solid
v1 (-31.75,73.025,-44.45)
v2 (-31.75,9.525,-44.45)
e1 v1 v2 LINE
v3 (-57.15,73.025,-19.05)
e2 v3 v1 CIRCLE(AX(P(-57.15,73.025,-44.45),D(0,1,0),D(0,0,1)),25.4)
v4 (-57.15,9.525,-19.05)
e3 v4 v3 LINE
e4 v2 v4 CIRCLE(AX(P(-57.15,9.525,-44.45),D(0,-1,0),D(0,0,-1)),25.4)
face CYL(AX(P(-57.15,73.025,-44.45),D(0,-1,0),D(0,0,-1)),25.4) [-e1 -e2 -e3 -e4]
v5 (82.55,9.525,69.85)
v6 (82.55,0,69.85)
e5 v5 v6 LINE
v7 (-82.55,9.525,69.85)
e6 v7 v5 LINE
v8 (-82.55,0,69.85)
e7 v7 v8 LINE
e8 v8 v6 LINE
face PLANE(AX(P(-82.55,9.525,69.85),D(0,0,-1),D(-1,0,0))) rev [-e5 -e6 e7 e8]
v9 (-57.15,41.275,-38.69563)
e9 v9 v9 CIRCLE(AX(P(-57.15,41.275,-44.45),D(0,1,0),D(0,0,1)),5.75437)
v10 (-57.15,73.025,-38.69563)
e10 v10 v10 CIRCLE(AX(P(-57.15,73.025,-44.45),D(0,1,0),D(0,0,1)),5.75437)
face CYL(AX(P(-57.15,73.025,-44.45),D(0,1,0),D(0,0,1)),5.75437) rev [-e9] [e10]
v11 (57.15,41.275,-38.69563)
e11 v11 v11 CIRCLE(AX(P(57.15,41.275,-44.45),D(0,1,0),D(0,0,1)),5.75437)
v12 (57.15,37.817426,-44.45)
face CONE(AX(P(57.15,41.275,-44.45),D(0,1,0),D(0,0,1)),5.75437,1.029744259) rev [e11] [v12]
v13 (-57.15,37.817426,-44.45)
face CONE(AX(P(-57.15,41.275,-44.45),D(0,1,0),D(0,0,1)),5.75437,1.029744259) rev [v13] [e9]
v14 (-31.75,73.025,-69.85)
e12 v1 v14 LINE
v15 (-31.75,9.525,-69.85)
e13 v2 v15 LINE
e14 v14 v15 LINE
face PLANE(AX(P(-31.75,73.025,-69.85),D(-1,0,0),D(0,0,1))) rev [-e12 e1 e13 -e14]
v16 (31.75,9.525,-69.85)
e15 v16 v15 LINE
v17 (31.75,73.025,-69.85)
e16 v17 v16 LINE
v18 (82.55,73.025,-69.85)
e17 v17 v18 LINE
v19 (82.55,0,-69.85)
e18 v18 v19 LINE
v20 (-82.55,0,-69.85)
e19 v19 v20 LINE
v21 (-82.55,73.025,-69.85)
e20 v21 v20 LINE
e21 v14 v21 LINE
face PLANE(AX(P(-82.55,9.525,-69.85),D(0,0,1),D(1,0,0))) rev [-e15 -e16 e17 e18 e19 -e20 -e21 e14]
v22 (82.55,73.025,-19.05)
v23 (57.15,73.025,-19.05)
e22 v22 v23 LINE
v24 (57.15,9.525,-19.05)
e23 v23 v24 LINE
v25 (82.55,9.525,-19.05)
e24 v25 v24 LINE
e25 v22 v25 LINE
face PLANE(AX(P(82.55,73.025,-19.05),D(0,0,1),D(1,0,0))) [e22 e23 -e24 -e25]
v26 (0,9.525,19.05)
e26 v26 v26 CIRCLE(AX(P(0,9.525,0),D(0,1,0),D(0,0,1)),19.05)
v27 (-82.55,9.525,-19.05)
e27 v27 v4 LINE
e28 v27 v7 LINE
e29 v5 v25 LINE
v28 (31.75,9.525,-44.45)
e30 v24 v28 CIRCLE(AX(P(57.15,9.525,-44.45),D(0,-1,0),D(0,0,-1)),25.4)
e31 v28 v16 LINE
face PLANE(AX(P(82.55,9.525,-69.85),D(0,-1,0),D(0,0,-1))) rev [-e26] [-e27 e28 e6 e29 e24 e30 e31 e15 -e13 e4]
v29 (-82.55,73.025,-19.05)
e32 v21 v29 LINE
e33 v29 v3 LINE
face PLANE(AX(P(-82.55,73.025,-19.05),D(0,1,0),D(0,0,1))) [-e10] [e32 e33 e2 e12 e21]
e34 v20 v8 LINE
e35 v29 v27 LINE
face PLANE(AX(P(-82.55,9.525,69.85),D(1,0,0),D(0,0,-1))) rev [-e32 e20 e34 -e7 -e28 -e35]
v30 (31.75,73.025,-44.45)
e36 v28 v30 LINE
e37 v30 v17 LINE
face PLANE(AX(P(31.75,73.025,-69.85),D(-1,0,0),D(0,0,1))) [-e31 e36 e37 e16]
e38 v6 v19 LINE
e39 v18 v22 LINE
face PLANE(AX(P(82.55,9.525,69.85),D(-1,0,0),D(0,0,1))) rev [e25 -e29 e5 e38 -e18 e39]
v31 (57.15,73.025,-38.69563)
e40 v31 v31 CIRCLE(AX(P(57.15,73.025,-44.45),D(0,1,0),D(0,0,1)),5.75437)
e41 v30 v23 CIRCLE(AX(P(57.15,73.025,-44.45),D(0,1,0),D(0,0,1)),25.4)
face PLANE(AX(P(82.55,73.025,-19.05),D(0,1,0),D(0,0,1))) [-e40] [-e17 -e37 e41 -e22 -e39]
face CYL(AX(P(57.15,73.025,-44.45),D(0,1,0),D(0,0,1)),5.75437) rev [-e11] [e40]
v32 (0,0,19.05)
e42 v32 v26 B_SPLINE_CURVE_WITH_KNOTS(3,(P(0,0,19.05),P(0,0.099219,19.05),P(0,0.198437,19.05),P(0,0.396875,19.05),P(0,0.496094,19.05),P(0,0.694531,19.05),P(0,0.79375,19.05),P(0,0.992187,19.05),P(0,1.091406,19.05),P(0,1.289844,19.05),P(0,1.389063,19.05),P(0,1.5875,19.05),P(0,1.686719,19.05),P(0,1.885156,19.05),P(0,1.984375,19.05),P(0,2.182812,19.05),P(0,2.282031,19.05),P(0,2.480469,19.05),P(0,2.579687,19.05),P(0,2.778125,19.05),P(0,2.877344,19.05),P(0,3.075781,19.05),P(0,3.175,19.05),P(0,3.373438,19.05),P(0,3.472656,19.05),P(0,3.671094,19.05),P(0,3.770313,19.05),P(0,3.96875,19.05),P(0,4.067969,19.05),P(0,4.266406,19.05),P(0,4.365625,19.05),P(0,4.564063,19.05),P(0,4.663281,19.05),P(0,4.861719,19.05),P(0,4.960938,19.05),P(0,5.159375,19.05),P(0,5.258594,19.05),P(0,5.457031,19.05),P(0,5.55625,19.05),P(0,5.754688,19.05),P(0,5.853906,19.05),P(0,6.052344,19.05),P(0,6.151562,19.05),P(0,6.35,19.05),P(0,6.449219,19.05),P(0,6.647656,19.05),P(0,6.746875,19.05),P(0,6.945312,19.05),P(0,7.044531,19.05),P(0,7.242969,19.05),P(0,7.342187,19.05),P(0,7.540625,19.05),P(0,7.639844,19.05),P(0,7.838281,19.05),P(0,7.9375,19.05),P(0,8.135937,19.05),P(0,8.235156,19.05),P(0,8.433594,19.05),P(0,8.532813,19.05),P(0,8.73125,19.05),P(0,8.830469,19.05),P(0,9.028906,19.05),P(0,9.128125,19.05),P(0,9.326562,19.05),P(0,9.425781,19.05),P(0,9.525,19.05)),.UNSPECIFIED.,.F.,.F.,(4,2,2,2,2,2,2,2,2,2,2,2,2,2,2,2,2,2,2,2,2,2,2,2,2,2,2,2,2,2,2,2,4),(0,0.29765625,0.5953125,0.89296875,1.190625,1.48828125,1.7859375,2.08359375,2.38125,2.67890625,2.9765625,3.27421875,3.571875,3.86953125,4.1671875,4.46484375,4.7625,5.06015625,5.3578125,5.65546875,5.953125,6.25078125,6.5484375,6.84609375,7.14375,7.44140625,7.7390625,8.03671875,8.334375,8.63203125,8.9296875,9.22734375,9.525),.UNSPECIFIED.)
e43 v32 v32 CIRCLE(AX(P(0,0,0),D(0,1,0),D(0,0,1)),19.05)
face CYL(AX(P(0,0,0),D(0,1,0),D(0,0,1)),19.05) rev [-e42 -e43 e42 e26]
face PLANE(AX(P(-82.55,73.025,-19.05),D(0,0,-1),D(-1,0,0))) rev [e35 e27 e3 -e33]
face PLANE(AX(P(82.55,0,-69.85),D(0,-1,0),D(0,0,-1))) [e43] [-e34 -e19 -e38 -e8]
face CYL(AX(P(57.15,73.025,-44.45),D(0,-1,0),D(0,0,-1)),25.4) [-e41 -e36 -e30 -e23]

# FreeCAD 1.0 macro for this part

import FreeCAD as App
import Part
import Sketcher
from FreeCAD import Vector
Q = App.Units.Quantity


def edges_at(feature, points):
    """Names of the edges that pass closest to the given points."""
    edges = feature.Shape.Edges
    near = lambda p: min(range(len(edges)), key=lambda i: edges[i].distToShape(Part.Vertex(*p))[0])
    return sorted({f"Edge{near(p) + 1}" for p in points})

doc = App.newDocument("Part")
body = doc.addObject("PartDesign::Body", "Body")

# Sketch on XZ plane
sketch1 = body.newObject("Sketcher::SketchObject", "Sketch")
sketch1.AttachmentSupport = (doc.getObject("XZ_Plane"), [""])
sketch1.MapMode = "FlatFace"
sketch1.addGeometry([
    Part.LineSegment(Vector(-83, -70, 0), Vector(-83, 70, 0)),
    Part.LineSegment(Vector(-83, 70, 0), Vector(83, 70, 0)),
    Part.LineSegment(Vector(83, 70, 0), Vector(83, -70, 0)),
    Part.LineSegment(Vector(83, -70, 0), Vector(-83, -70, 0)),
], False)
sketch1.addConstraint([
    Sketcher.Constraint("Coincident", 0, 2, 1, 1),
    Sketcher.Constraint("Coincident", 1, 2, 2, 1),
    Sketcher.Constraint("Coincident", 2, 2, 3, 1),
    Sketcher.Constraint("Coincident", 3, 2, 0, 1),
    Sketcher.Constraint("Vertical", 0),
    Sketcher.Constraint("Horizontal", 1),
    Sketcher.Constraint("Vertical", 2),
    Sketcher.Constraint("Horizontal", 3),
    Sketcher.Constraint("Symmetric", 0, 2, 2, 2, -1, 1),
    Sketcher.Constraint("DistanceX", 1, 1, 1, 2, Q("6.5 in")),
    Sketcher.Constraint("DistanceY", 0, 1, 0, 2, Q("5.5 in")),
])
pad1 = body.newObject("PartDesign::Pad", "Pad")
pad1.Profile = sketch1
pad1.Length = Q("0.375 in")
pad1.Reversed = True

# Sketch on XZ plane
sketch2 = body.newObject("Sketcher::SketchObject", "Sketch001")
sketch2.AttachmentSupport = (doc.getObject("XZ_Plane"), [""])
sketch2.MapMode = "FlatFace"
sketch2.AttachmentOffset = App.Placement(Vector(0, 0, -0.375 * 25.4), App.Rotation())
sketch2.addGeometry([
    Part.LineSegment(Vector(-83, -70, 0), Vector(-83, -19, 0)),
    Part.LineSegment(Vector(-83, -19, 0), Vector(-32, -19, 0)),
    Part.LineSegment(Vector(-32, -19, 0), Vector(-32, -70, 0)),
    Part.LineSegment(Vector(-32, -70, 0), Vector(-83, -70, 0)),
], False)
sketch2.addConstraint([
    Sketcher.Constraint("Coincident", 0, 2, 1, 1),
    Sketcher.Constraint("Coincident", 1, 2, 2, 1),
    Sketcher.Constraint("Coincident", 2, 2, 3, 1),
    Sketcher.Constraint("Coincident", 3, 2, 0, 1),
    Sketcher.Constraint("Vertical", 0),
    Sketcher.Constraint("Horizontal", 1),
    Sketcher.Constraint("Vertical", 2),
    Sketcher.Constraint("Horizontal", 3),
    Sketcher.Constraint("Equal", 3, 0),
    Sketcher.Constraint("DistanceX", 1, 1, 1, 2, Q("2 in")),
    Sketcher.Constraint("DistanceX", 0, 2, -1, 1, Q("3.25 in")),
    Sketcher.Constraint("DistanceY", 0, 2, -1, 1, Q("0.75 in")),
])
pad2 = body.newObject("PartDesign::Pad", "Pad001")
pad2.Profile = sketch2
pad2.Length = Q("2.5 in")
pad2.Reversed = True

# Sketch on YZ plane
sketch3 = body.newObject("Sketcher::SketchObject", "Sketch002")
sketch3.AttachmentSupport = (doc.getObject("YZ_Plane"), [""])
sketch3.MapMode = "FlatFace"
sketch3.AttachmentOffset = App.Placement(Vector(0, 0, -2.25 * 25.4), App.Rotation())
sketch3.addGeometry([
    Part.LineSegment(Vector(38, -44, 0), Vector(73, -44, 0)),
    Part.LineSegment(Vector(73, -44, 0), Vector(73, -39, 0)),
    Part.LineSegment(Vector(73, -39, 0), Vector(41, -39, 0)),
    Part.LineSegment(Vector(41, -39, 0), Vector(38, -44, 0)),
], False)
sketch3.addGeometry(Part.LineSegment(Vector(73, -44, 0), Vector(38, -44, 0)), True)  # axis
sketch3.addConstraint([
    Sketcher.Constraint("Coincident", 0, 2, 1, 1),
    Sketcher.Constraint("Coincident", 1, 2, 2, 1),
    Sketcher.Constraint("Coincident", 2, 2, 3, 1),
    Sketcher.Constraint("Coincident", 3, 2, 0, 1),
    Sketcher.Constraint("Horizontal", 0),
    Sketcher.Constraint("Vertical", 1),
    Sketcher.Constraint("Horizontal", 2),
    Sketcher.Constraint("Horizontal", 4),
    Sketcher.Constraint("Coincident", 4, 1, 0, 2),
    Sketcher.Constraint("Equal", 0, 4),
    Sketcher.Constraint("Angle", 3, Q("-121 deg")),
    Sketcher.Constraint("DistanceX", 2, 2, 2, 1, Q("1.25 in")),
    Sketcher.Constraint("DistanceY", 0, 2, -1, 1, Q("1.75 in")),
    Sketcher.Constraint("DistanceX", -1, 1, 0, 2, Q("2.875 in")),
    Sketcher.Constraint("DistanceY", 1, 1, 1, 2, 5.75437),
])
groove = body.newObject("PartDesign::Groove", "Groove")
groove.Profile = sketch3
groove.ReferenceAxis = (sketch3, ["Axis0"])
groove.Angle = 360
doc.recompute()

fillet = body.newObject("PartDesign::Fillet", "Fillet")
fillet.Base = (groove, edges_at(groove, [(-31.75, 41.275, -19.05)]))
fillet.Radius = Q("1 in")
doc.recompute()

mirrored = body.newObject("PartDesign::Mirrored", "Mirrored")
mirrored.Originals = [pad2, groove]
mirrored.MirrorPlane = (doc.getObject("YZ_Plane"), [""])
body.Tip = mirrored
doc.recompute()

fillet2 = body.newObject("PartDesign::Fillet", "Fillet001")
fillet2.Base = (mirrored, edges_at(mirrored, [(31.75, 41.275, -19.05)]))
fillet2.Radius = Q("1 in")

# Sketch on XZ plane
sketch4 = body.newObject("Sketcher::SketchObject", "Sketch003")
sketch4.AttachmentSupport = (doc.getObject("XZ_Plane"), [""])
sketch4.MapMode = "FlatFace"
sketch4.AttachmentOffset = App.Placement(Vector(0, 0, -0.375 * 25.4), App.Rotation())
sketch4.addGeometry(Part.Circle(Vector(0, 0, 0), Vector(0, 0, 1), 19), False)
sketch4.addConstraint([
    Sketcher.Constraint("Coincident", 0, 3, -1, 1),
    Sketcher.Constraint("Diameter", 0, Q("1.5 in")),
])
pocket1 = body.newObject("PartDesign::Pocket", "Pocket")
pocket1.Profile = sketch4
pocket1.Type = "ThroughAll"
pocket1.Reversed = True

doc.recompute()
